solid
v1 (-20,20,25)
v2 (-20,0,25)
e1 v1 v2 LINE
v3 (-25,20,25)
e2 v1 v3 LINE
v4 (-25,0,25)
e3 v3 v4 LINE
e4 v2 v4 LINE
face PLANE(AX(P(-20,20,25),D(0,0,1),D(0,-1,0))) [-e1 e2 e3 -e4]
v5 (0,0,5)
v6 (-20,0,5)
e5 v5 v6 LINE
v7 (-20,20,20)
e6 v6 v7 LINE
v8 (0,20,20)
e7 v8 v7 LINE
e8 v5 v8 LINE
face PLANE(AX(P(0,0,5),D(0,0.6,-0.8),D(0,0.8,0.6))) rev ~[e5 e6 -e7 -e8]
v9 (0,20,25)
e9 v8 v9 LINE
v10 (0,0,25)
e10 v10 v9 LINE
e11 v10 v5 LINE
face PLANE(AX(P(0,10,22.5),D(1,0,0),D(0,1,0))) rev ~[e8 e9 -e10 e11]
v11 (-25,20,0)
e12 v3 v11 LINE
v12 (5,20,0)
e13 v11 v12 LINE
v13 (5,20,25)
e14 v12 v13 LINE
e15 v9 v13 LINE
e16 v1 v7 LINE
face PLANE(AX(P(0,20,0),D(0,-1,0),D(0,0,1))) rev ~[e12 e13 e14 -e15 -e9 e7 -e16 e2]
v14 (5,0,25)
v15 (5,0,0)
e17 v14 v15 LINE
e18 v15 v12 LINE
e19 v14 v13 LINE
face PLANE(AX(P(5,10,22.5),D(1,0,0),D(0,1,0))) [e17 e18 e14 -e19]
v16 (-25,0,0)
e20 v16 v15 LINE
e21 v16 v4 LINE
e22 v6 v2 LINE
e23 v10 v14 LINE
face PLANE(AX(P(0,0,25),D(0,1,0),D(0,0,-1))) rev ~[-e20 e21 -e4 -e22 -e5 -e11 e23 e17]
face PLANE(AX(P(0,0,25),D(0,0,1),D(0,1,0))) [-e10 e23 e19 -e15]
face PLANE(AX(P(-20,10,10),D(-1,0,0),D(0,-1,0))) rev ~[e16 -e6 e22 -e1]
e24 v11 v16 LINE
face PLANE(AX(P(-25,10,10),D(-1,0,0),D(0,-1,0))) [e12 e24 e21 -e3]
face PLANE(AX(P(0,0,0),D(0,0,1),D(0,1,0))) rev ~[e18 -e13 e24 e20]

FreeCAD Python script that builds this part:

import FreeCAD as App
import Part
import Sketcher

V = App.Vector
Q = App.Units.Quantity

doc = App.newDocument("Part")
body = doc.addObject("PartDesign::Body", "Body")

sketch1 = body.newObject("Sketcher::SketchObject", "Sketch")
sketch1.AttachmentSupport = (doc.getObject("YZ_Plane"), [""])
sketch1.MapMode = "FlatFace"
sketch1.addGeometry(Part.LineSegment(V(0, 20, 0), V(0, 0, 0)), False)
sketch1.addGeometry(Part.LineSegment(V(0, 0, 0), V(20, 0, 0)), False)
sketch1.addGeometry(Part.LineSegment(V(20, 0, 0), V(20, 20, 0)), False)
sketch1.addGeometry(Part.LineSegment(V(20, 20, 0), V(0, 20, 0)), False)
sketch1.addConstraint(Sketcher.Constraint("Coincident", 0, 2, 1, 1))
sketch1.addConstraint(Sketcher.Constraint("Coincident", 1, 2, 2, 1))
sketch1.addConstraint(Sketcher.Constraint("Coincident", 2, 2, 3, 1))
sketch1.addConstraint(Sketcher.Constraint("Coincident", 3, 2, 0, 1))
sketch1.addConstraint(Sketcher.Constraint("Vertical", 0))
sketch1.addConstraint(Sketcher.Constraint("Horizontal", 1))
sketch1.addConstraint(Sketcher.Constraint("Vertical", 2))
sketch1.addConstraint(Sketcher.Constraint("Horizontal", 3))
sketch1.addConstraint(Sketcher.Constraint("Coincident", 0, 2, -1, 1))
sketch1.addConstraint(Sketcher.Constraint("Equal", 3, 0))
sketch1.addConstraint(Sketcher.Constraint("DistanceX", 1, 1, 1, 2, Q("20 mm")))
pad1 = body.newObject("PartDesign::Pad", "Pad")
pad1.Profile = sketch1
pad1.Length = 20
pad1.Reversed = True

sketch2 = body.newObject("Sketcher::SketchObject", "Sketch001")
sketch2.AttachmentSupport = (doc.getObject("YZ_Plane"), [""])
sketch2.MapMode = "FlatFace"
sketch2.AttachmentOffset = App.Placement(V(0, 0, -20), App.Rotation())
sketch2.addGeometry(Part.LineSegment(V(20, 0, 0), V(0, 0, 0)), False)
sketch2.addGeometry(Part.LineSegment(V(0, 0, 0), V(0, 25, 0)), False)
sketch2.addGeometry(Part.LineSegment(V(0, 25, 0), V(20, 25, 0)), False)
sketch2.addGeometry(Part.LineSegment(V(20, 25, 0), V(20, 0, 0)), False)
sketch2.addConstraint(Sketcher.Constraint("Coincident", 0, 2, 1, 1))
sketch2.addConstraint(Sketcher.Constraint("Coincident", 1, 2, 2, 1))
sketch2.addConstraint(Sketcher.Constraint("Coincident", 2, 2, 3, 1))
sketch2.addConstraint(Sketcher.Constraint("Coincident", 3, 2, 0, 1))
sketch2.addConstraint(Sketcher.Constraint("Horizontal", 0))
sketch2.addConstraint(Sketcher.Constraint("Vertical", 1))
sketch2.addConstraint(Sketcher.Constraint("Horizontal", 2))
sketch2.addConstraint(Sketcher.Constraint("Vertical", 3))
sketch2.addConstraint(Sketcher.Constraint("Coincident", 0, 2, -1, 1))
sketch2.addConstraint(Sketcher.Constraint("DistanceX", 0, 2, 0, 1, Q("20 mm")))
sketch2.addConstraint(Sketcher.Constraint("DistanceY", 1, 1, 1, 2, Q("25 mm")))
pad2 = body.newObject("PartDesign::Pad", "Pad001")
pad2.Profile = sketch2
pad2.Length = 5
pad2.Reversed = True

sketch3 = body.newObject("Sketcher::SketchObject", "Sketch002")
sketch3.AttachmentSupport = (doc.getObject("YZ_Plane"), [""])
sketch3.MapMode = "FlatFace"
sketch3.addGeometry(Part.LineSegment(V(0, 5, 0), V(20, 20, 0)), False)
sketch3.addGeometry(Part.LineSegment(V(20, 20, 0), V(0, 20, 0)), False)
sketch3.addGeometry(Part.LineSegment(V(0, 20, 0), V(0, 5, 0)), False)
sketch3.addConstraint(Sketcher.Constraint("Coincident", 0, 2, 1, 1))
sketch3.addConstraint(Sketcher.Constraint("Coincident", 1, 2, 2, 1))
sketch3.addConstraint(Sketcher.Constraint("Coincident", 2, 2, 0, 1))
sketch3.addConstraint(Sketcher.Constraint("Horizontal", 1))
sketch3.addConstraint(Sketcher.Constraint("Vertical", 2))
sketch3.addConstraint(Sketcher.Constraint("PointOnObject", 1, 2, -2))
sketch3.addConstraint(Sketcher.Constraint("DistanceX", 1, 2, 1, 1, Q("20 mm")))
sketch3.addConstraint(Sketcher.Constraint("DistanceY", 2, 2, 2, 1, Q("15 mm")))
sketch3.addConstraint(Sketcher.Constraint("DistanceY", -1, 1, 0, 2, Q("20 mm")))
pocket1 = body.newObject("PartDesign::Pocket", "Pocket")
pocket1.Profile = sketch3
pocket1.Length = 20

sketch4 = body.newObject("Sketcher::SketchObject", "Sketch003")
sketch4.AttachmentSupport = (doc.getObject("YZ_Plane"), [""])
sketch4.MapMode = "FlatFace"
sketch4.addGeometry(Part.LineSegment(V(0, 25, 0), V(0, 0, 0)), False)
sketch4.addGeometry(Part.LineSegment(V(0, 0, 0), V(20, 0, 0)), False)
sketch4.addGeometry(Part.LineSegment(V(20, 0, 0), V(20, 25, 0)), False)
sketch4.addGeometry(Part.LineSegment(V(20, 25, 0), V(0, 25, 0)), False)
sketch4.addConstraint(Sketcher.Constraint("Coincident", 0, 2, 1, 1))
sketch4.addConstraint(Sketcher.Constraint("Coincident", 1, 2, 2, 1))
sketch4.addConstraint(Sketcher.Constraint("Coincident", 2, 2, 3, 1))
sketch4.addConstraint(Sketcher.Constraint("Coincident", 3, 2, 0, 1))
sketch4.addConstraint(Sketcher.Constraint("Vertical", 0))
sketch4.addConstraint(Sketcher.Constraint("Horizontal", 1))
sketch4.addConstraint(Sketcher.Constraint("Vertical", 2))
sketch4.addConstraint(Sketcher.Constraint("Horizontal", 3))
sketch4.addConstraint(Sketcher.Constraint("Coincident", 0, 2, -1, 1))
sketch4.addConstraint(Sketcher.Constraint("DistanceX", 1, 1, 1, 2, Q("20 mm")))
sketch4.addConstraint(Sketcher.Constraint("DistanceY", 0, 2, 0, 1, Q("25 mm")))
pad3 = body.newObject("PartDesign::Pad", "Pad002")
pad3.Profile = sketch4
pad3.Length = 5

doc.recompute()
